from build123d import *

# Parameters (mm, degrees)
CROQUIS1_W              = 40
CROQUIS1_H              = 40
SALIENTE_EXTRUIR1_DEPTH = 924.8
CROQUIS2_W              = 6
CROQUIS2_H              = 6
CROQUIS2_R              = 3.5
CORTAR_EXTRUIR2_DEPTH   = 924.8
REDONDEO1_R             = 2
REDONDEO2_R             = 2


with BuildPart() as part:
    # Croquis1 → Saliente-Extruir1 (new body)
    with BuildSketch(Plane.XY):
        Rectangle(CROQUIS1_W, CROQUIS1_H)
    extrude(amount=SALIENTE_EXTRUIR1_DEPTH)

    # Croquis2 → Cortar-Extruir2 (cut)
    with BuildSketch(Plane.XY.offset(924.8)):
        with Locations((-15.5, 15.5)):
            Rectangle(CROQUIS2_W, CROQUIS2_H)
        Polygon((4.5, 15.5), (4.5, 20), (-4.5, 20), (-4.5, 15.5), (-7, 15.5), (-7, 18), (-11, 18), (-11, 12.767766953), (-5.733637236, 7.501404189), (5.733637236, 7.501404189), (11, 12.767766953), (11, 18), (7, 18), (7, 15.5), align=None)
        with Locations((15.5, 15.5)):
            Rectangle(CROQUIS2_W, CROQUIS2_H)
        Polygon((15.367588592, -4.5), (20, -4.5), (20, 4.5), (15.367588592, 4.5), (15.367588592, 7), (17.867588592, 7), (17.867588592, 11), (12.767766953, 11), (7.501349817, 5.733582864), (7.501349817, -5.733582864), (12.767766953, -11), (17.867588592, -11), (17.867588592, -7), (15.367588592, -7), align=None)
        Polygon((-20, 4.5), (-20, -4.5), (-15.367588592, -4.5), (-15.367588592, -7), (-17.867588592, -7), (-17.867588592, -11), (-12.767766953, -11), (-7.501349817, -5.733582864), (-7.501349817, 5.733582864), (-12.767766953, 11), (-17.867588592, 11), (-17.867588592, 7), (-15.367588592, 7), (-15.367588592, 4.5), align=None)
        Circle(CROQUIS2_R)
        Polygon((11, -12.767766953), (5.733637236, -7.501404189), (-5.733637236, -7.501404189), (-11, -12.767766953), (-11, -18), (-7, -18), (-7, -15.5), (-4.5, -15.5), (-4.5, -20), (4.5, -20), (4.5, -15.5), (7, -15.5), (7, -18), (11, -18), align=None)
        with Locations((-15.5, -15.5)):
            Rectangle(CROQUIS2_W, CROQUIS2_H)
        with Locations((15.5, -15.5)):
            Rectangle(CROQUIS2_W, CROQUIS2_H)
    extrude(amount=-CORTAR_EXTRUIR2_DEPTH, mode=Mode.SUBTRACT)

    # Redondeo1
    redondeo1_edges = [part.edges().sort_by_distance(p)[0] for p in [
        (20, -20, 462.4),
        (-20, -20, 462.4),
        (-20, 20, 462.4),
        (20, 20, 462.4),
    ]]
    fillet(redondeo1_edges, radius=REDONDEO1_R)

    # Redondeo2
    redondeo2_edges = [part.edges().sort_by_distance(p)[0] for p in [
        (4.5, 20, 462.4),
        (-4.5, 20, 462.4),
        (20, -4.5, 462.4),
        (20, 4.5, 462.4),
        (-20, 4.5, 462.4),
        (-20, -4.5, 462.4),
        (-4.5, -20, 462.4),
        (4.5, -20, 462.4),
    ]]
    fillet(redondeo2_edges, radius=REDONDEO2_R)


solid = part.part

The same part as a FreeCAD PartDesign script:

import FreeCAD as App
import Part
import Sketcher
Q = App.Units.Quantity


def edges_at(feature, points):
    """Names of the edges that pass closest to the given points."""
    edges = feature.Shape.Edges
    near = lambda p: min(range(len(edges)), key=lambda i: edges[i].distToShape(Part.Vertex(*p))[0])
    return sorted({f"Edge{near(p) + 1}" for p in points})

doc = App.newDocument("Part")
params = doc.addObject("Spreadsheet::Sheet", "Params")
for row, (alias, value) in enumerate([
    ("sketch1_width", "40 mm"),
    ("pad1_length", "924.8 mm"),
    ("sketch2_diameter", "7 mm"),
    ("sketch2_width", "6 mm"),
    ("sketch2_width2", "9 mm"),
    ("sketch2_width3", "4 mm"),
    ("sketch2_width4", "2.5 mm"),
    ("pocket1_length", "924.8 mm"),
    ("fillet_radius", "2 mm"),
    ("fillet2_radius", "2 mm"),
], start=1):
    params.set(f"A{row}", alias)
    params.set(f"B{row}", "=" + value)
    params.setAlias(f"B{row}", alias)

body = doc.addObject("PartDesign::Body", "Body")

# Sketch on XY plane
sketch1 = doc.addObject("Sketcher::SketchObject", "Sketch")
body.addObject(sketch1)
sketch1.AttachmentSupport = (doc.XY_Plane, [""])
sketch1.MapMode = "FlatFace"
sketch1.addGeometry([
    Part.LineSegment(App.Vector(-20, 20, 0), App.Vector(-20, -20, 0)),
    Part.LineSegment(App.Vector(-20, -20, 0), App.Vector(20, -20, 0)),
    Part.LineSegment(App.Vector(20, -20, 0), App.Vector(20, 20, 0)),
    Part.LineSegment(App.Vector(20, 20, 0), App.Vector(-20, 20, 0)),
], False)
sketch1.addConstraint([
    Sketcher.Constraint("Coincident", 0, 2, 1, 1),
    Sketcher.Constraint("Coincident", 1, 2, 2, 1),
    Sketcher.Constraint("Coincident", 2, 2, 3, 1),
    Sketcher.Constraint("Coincident", 3, 2, 0, 1),
    Sketcher.Constraint("Vertical", 0),
    Sketcher.Constraint("Horizontal", 1),
    Sketcher.Constraint("Vertical", 2),
    Sketcher.Constraint("Horizontal", 3),
    Sketcher.Constraint("Symmetric", 0, 2, 2, 2, -1, 1),
    Sketcher.Constraint("Equal", 3, 0),
    Sketcher.Constraint("DistanceX", 1, 1, 1, 2, Q("40 mm")),
])
sketch1.setExpression("Constraints[10]", "Params.sketch1_width")
pad1 = doc.addObject("PartDesign::Pad", "Pad")
body.addObject(pad1)
pad1.Profile = sketch1
pad1.setExpression("Length", "Params.pad1_length")

# Sketch on XY plane
sketch2 = doc.addObject("Sketcher::SketchObject", "Sketch001")
body.addObject(sketch2)
sketch2.AttachmentSupport = (doc.XY_Plane, [""])
sketch2.MapMode = "FlatFace"
sketch2.AttachmentOffset = App.Placement(App.Vector(0, 0, 924.8), App.Rotation())
sketch2.addGeometry([
    Part.LineSegment(App.Vector(-18.5, 18.5, 0), App.Vector(-18.5, 12.5, 0)),  # 0
    Part.LineSegment(App.Vector(-18.5, 12.5, 0), App.Vector(-12.5, 12.5, 0)),  # 1
    Part.LineSegment(App.Vector(-12.5, 12.5, 0), App.Vector(-12.5, 18.5, 0)),  # 2
    Part.LineSegment(App.Vector(-12.5, 18.5, 0), App.Vector(-18.5, 18.5, 0)),  # 3
    Part.LineSegment(App.Vector(4.5, 15.5, 0), App.Vector(4.5, 20, 0)),  # 4
    Part.LineSegment(App.Vector(4.5, 20, 0), App.Vector(-4.5, 20, 0)),  # 5
    Part.LineSegment(App.Vector(-4.5, 20, 0), App.Vector(-4.5, 15.5, 0)),  # 6
    Part.LineSegment(App.Vector(-4.5, 15.5, 0), App.Vector(-7, 15.5, 0)),  # 7
    Part.LineSegment(App.Vector(-7, 15.5, 0), App.Vector(-7, 18, 0)),  # 8
    Part.LineSegment(App.Vector(-7, 18, 0), App.Vector(-11, 18, 0)),  # 9
    Part.LineSegment(App.Vector(-11, 18, 0), App.Vector(-11, 12.8, 0)),  # 10
    Part.LineSegment(App.Vector(-11, 12.8, 0), App.Vector(-5.7, 7.5, 0)),  # 11
    Part.LineSegment(App.Vector(-5.7, 7.5, 0), App.Vector(5.7, 7.5, 0)),  # 12
    Part.LineSegment(App.Vector(5.7, 7.5, 0), App.Vector(11, 12.8, 0)),  # 13
    Part.LineSegment(App.Vector(11, 12.8, 0), App.Vector(11, 18, 0)),  # 14
    Part.LineSegment(App.Vector(11, 18, 0), App.Vector(7, 18, 0)),  # 15
    Part.LineSegment(App.Vector(7, 18, 0), App.Vector(7, 15.5, 0)),  # 16
    Part.LineSegment(App.Vector(7, 15.5, 0), App.Vector(4.5, 15.5, 0)),  # 17
    Part.LineSegment(App.Vector(12.5, 18.5, 0), App.Vector(12.5, 12.5, 0)),  # 18
    Part.LineSegment(App.Vector(12.5, 12.5, 0), App.Vector(18.5, 12.5, 0)),  # 19
    Part.LineSegment(App.Vector(18.5, 12.5, 0), App.Vector(18.5, 18.5, 0)),  # 20
    Part.LineSegment(App.Vector(18.5, 18.5, 0), App.Vector(12.5, 18.5, 0)),  # 21
    Part.LineSegment(App.Vector(15.4, -4.5, 0), App.Vector(20, -4.5, 0)),  # 22
    Part.LineSegment(App.Vector(20, -4.5, 0), App.Vector(20, 4.5, 0)),  # 23
    Part.LineSegment(App.Vector(20, 4.5, 0), App.Vector(15.4, 4.5, 0)),  # 24
    Part.LineSegment(App.Vector(15.4, 4.5, 0), App.Vector(15.4, 7, 0)),  # 25
    Part.LineSegment(App.Vector(15.4, 7, 0), App.Vector(17.9, 7, 0)),  # 26
    Part.LineSegment(App.Vector(17.9, 7, 0), App.Vector(17.9, 11, 0)),  # 27
    Part.LineSegment(App.Vector(17.9, 11, 0), App.Vector(12.8, 11, 0)),  # 28
    Part.LineSegment(App.Vector(12.8, 11, 0), App.Vector(7.5, 5.7, 0)),  # 29
    Part.LineSegment(App.Vector(7.5, 5.7, 0), App.Vector(7.5, -5.7, 0)),  # 30
    Part.LineSegment(App.Vector(7.5, -5.7, 0), App.Vector(12.8, -11, 0)),  # 31
    Part.LineSegment(App.Vector(12.8, -11, 0), App.Vector(17.9, -11, 0)),  # 32
    Part.LineSegment(App.Vector(17.9, -11, 0), App.Vector(17.9, -7, 0)),  # 33
    Part.LineSegment(App.Vector(17.9, -7, 0), App.Vector(15.4, -7, 0)),  # 34
    Part.LineSegment(App.Vector(15.4, -7, 0), App.Vector(15.4, -4.5, 0)),  # 35
    Part.LineSegment(App.Vector(-20, 4.5, 0), App.Vector(-20, -4.5, 0)),  # 36
    Part.LineSegment(App.Vector(-20, -4.5, 0), App.Vector(-15.4, -4.5, 0)),  # 37
    Part.LineSegment(App.Vector(-15.4, -4.5, 0), App.Vector(-15.4, -7, 0)),  # 38
    Part.LineSegment(App.Vector(-15.4, -7, 0), App.Vector(-17.9, -7, 0)),  # 39
    Part.LineSegment(App.Vector(-17.9, -7, 0), App.Vector(-17.9, -11, 0)),  # 40
    Part.LineSegment(App.Vector(-17.9, -11, 0), App.Vector(-12.8, -11, 0)),  # 41
    Part.LineSegment(App.Vector(-12.8, -11, 0), App.Vector(-7.5, -5.7, 0)),  # 42
    Part.LineSegment(App.Vector(-7.5, -5.7, 0), App.Vector(-7.5, 5.7, 0)),  # 43
    Part.LineSegment(App.Vector(-7.5, 5.7, 0), App.Vector(-12.8, 11, 0)),  # 44
    Part.LineSegment(App.Vector(-12.8, 11, 0), App.Vector(-17.9, 11, 0)),  # 45
    Part.LineSegment(App.Vector(-17.9, 11, 0), App.Vector(-17.9, 7, 0)),  # 46
    Part.LineSegment(App.Vector(-17.9, 7, 0), App.Vector(-15.4, 7, 0)),  # 47
    Part.LineSegment(App.Vector(-15.4, 7, 0), App.Vector(-15.4, 4.5, 0)),  # 48
    Part.LineSegment(App.Vector(-15.4, 4.5, 0), App.Vector(-20, 4.5, 0)),  # 49
    Part.Circle(App.Vector(0, 0, 0), App.Vector(0, 0, 1), 3.5),  # 50
    Part.LineSegment(App.Vector(11, -12.8, 0), App.Vector(5.7, -7.5, 0)),  # 51
    Part.LineSegment(App.Vector(5.7, -7.5, 0), App.Vector(-5.7, -7.5, 0)),  # 52
    Part.LineSegment(App.Vector(-5.7, -7.5, 0), App.Vector(-11, -12.8, 0)),  # 53
    Part.LineSegment(App.Vector(-11, -12.8, 0), App.Vector(-11, -18, 0)),  # 54
    Part.LineSegment(App.Vector(-11, -18, 0), App.Vector(-7, -18, 0)),  # 55
    Part.LineSegment(App.Vector(-7, -18, 0), App.Vector(-7, -15.5, 0)),  # 56
    Part.LineSegment(App.Vector(-7, -15.5, 0), App.Vector(-4.5, -15.5, 0)),  # 57
    Part.LineSegment(App.Vector(-4.5, -15.5, 0), App.Vector(-4.5, -20, 0)),  # 58
    Part.LineSegment(App.Vector(-4.5, -20, 0), App.Vector(4.5, -20, 0)),  # 59
    Part.LineSegment(App.Vector(4.5, -20, 0), App.Vector(4.5, -15.5, 0)),  # 60
    Part.LineSegment(App.Vector(4.5, -15.5, 0), App.Vector(7, -15.5, 0)),  # 61
    Part.LineSegment(App.Vector(7, -15.5, 0), App.Vector(7, -18, 0)),  # 62
    Part.LineSegment(App.Vector(7, -18, 0), App.Vector(11, -18, 0)),  # 63
    Part.LineSegment(App.Vector(11, -18, 0), App.Vector(11, -12.8, 0)),  # 64
    Part.LineSegment(App.Vector(-18.5, -12.5, 0), App.Vector(-18.5, -18.5, 0)),  # 65
    Part.LineSegment(App.Vector(-18.5, -18.5, 0), App.Vector(-12.5, -18.5, 0)),  # 66
    Part.LineSegment(App.Vector(-12.5, -18.5, 0), App.Vector(-12.5, -12.5, 0)),  # 67
    Part.LineSegment(App.Vector(-12.5, -12.5, 0), App.Vector(-18.5, -12.5, 0)),  # 68
    Part.LineSegment(App.Vector(12.5, -12.5, 0), App.Vector(12.5, -18.5, 0)),  # 69
    Part.LineSegment(App.Vector(12.5, -18.5, 0), App.Vector(18.5, -18.5, 0)),  # 70
    Part.LineSegment(App.Vector(18.5, -18.5, 0), App.Vector(18.5, -12.5, 0)),  # 71
    Part.LineSegment(App.Vector(18.5, -12.5, 0), App.Vector(12.5, -12.5, 0)),  # 72
], False)
sketch2.addConstraint([
    Sketcher.Constraint("Coincident", 0, 2, 1, 1),
    Sketcher.Constraint("Coincident", 1, 2, 2, 1),
    Sketcher.Constraint("Coincident", 2, 2, 3, 1),
    Sketcher.Constraint("Coincident", 3, 2, 0, 1),
    Sketcher.Constraint("Coincident", 4, 2, 5, 1),
    Sketcher.Constraint("Coincident", 5, 2, 6, 1),
    Sketcher.Constraint("Coincident", 6, 2, 7, 1),
    Sketcher.Constraint("Coincident", 7, 2, 8, 1),
    Sketcher.Constraint("Coincident", 8, 2, 9, 1),
    Sketcher.Constraint("Coincident", 9, 2, 10, 1),
    Sketcher.Constraint("Coincident", 10, 2, 11, 1),
    Sketcher.Constraint("Coincident", 11, 2, 12, 1),
    Sketcher.Constraint("Coincident", 12, 2, 13, 1),
    Sketcher.Constraint("Coincident", 13, 2, 14, 1),
    Sketcher.Constraint("Coincident", 14, 2, 15, 1),
    Sketcher.Constraint("Coincident", 15, 2, 16, 1),
    Sketcher.Constraint("Coincident", 16, 2, 17, 1),
    Sketcher.Constraint("Coincident", 17, 2, 4, 1),
    Sketcher.Constraint("Coincident", 18, 2, 19, 1),
    Sketcher.Constraint("Coincident", 19, 2, 20, 1),
    Sketcher.Constraint("Coincident", 20, 2, 21, 1),
    Sketcher.Constraint("Coincident", 21, 2, 18, 1),
    Sketcher.Constraint("Coincident", 22, 2, 23, 1),
    Sketcher.Constraint("Coincident", 23, 2, 24, 1),
    Sketcher.Constraint("Coincident", 24, 2, 25, 1),
    Sketcher.Constraint("Coincident", 25, 2, 26, 1),
    Sketcher.Constraint("Coincident", 26, 2, 27, 1),
    Sketcher.Constraint("Coincident", 27, 2, 28, 1),
    Sketcher.Constraint("Coincident", 28, 2, 29, 1),
    Sketcher.Constraint("Coincident", 29, 2, 30, 1),
    Sketcher.Constraint("Coincident", 30, 2, 31, 1),
    Sketcher.Constraint("Coincident", 31, 2, 32, 1),
    Sketcher.Constraint("Coincident", 32, 2, 33, 1),
    Sketcher.Constraint("Coincident", 33, 2, 34, 1),
    Sketcher.Constraint("Coincident", 34, 2, 35, 1),
    Sketcher.Constraint("Coincident", 35, 2, 22, 1),
    Sketcher.Constraint("Coincident", 36, 2, 37, 1),
    Sketcher.Constraint("Coincident", 37, 2, 38, 1),
    Sketcher.Constraint("Coincident", 38, 2, 39, 1),
    Sketcher.Constraint("Coincident", 39, 2, 40, 1),
    Sketcher.Constraint("Coincident", 40, 2, 41, 1),
    Sketcher.Constraint("Coincident", 41, 2, 42, 1),
    Sketcher.Constraint("Coincident", 42, 2, 43, 1),
    Sketcher.Constraint("Coincident", 43, 2, 44, 1),
    Sketcher.Constraint("Coincident", 44, 2, 45, 1),
    Sketcher.Constraint("Coincident", 45, 2, 46, 1),
    Sketcher.Constraint("Coincident", 46, 2, 47, 1),
    Sketcher.Constraint("Coincident", 47, 2, 48, 1),
    Sketcher.Constraint("Coincident", 48, 2, 49, 1),
    Sketcher.Constraint("Coincident", 49, 2, 36, 1),
    Sketcher.Constraint("Coincident", 51, 2, 52, 1),
    Sketcher.Constraint("Coincident", 52, 2, 53, 1),
    Sketcher.Constraint("Coincident", 53, 2, 54, 1),
    Sketcher.Constraint("Coincident", 54, 2, 55, 1),
    Sketcher.Constraint("Coincident", 55, 2, 56, 1),
    Sketcher.Constraint("Coincident", 56, 2, 57, 1),
    Sketcher.Constraint("Coincident", 57, 2, 58, 1),
    Sketcher.Constraint("Coincident", 58, 2, 59, 1),
    Sketcher.Constraint("Coincident", 59, 2, 60, 1),
    Sketcher.Constraint("Coincident", 60, 2, 61, 1),
    Sketcher.Constraint("Coincident", 61, 2, 62, 1),
    Sketcher.Constraint("Coincident", 62, 2, 63, 1),
    Sketcher.Constraint("Coincident", 63, 2, 64, 1),
    Sketcher.Constraint("Coincident", 64, 2, 51, 1),
    Sketcher.Constraint("Coincident", 65, 2, 66, 1),
    Sketcher.Constraint("Coincident", 66, 2, 67, 1),
    Sketcher.Constraint("Coincident", 67, 2, 68, 1),
    Sketcher.Constraint("Coincident", 68, 2, 65, 1),
    Sketcher.Constraint("Coincident", 69, 2, 70, 1),
    Sketcher.Constraint("Coincident", 70, 2, 71, 1),
    Sketcher.Constraint("Coincident", 71, 2, 72, 1),
    Sketcher.Constraint("Coincident", 72, 2, 69, 1),
    Sketcher.Constraint("Vertical", 0),
    Sketcher.Constraint("Horizontal", 1),
    Sketcher.Constraint("Vertical", 2),
    Sketcher.Constraint("Horizontal", 3),
    Sketcher.Constraint("Vertical", 4),
    Sketcher.Constraint("Horizontal", 5),
    Sketcher.Constraint("Vertical", 6),
    Sketcher.Constraint("Horizontal", 7),
    Sketcher.Constraint("Vertical", 8),
    Sketcher.Constraint("Horizontal", 9),
    Sketcher.Constraint("Vertical", 10),
    Sketcher.Constraint("Horizontal", 12),
    Sketcher.Constraint("Vertical", 14),
    Sketcher.Constraint("Horizontal", 15),
    Sketcher.Constraint("Vertical", 16),
    Sketcher.Constraint("Horizontal", 17),
    Sketcher.Constraint("Vertical", 18),
    Sketcher.Constraint("Horizontal", 19),
    Sketcher.Constraint("Vertical", 20),
    Sketcher.Constraint("Horizontal", 21),
    Sketcher.Constraint("Horizontal", 22),
    Sketcher.Constraint("Vertical", 23),
    Sketcher.Constraint("Horizontal", 24),
    Sketcher.Constraint("Vertical", 25),
    Sketcher.Constraint("Horizontal", 26),
    Sketcher.Constraint("Vertical", 27),
    Sketcher.Constraint("Horizontal", 28),
    Sketcher.Constraint("Vertical", 30),
    Sketcher.Constraint("Horizontal", 32),
    Sketcher.Constraint("Vertical", 33),
    Sketcher.Constraint("Horizontal", 34),
    Sketcher.Constraint("Vertical", 35),
    Sketcher.Constraint("Vertical", 36),
    Sketcher.Constraint("Horizontal", 37),
    Sketcher.Constraint("Vertical", 38),
    Sketcher.Constraint("Horizontal", 39),
    Sketcher.Constraint("Vertical", 40),
    Sketcher.Constraint("Horizontal", 41),
    Sketcher.Constraint("Vertical", 43),
    Sketcher.Constraint("Horizontal", 45),
    Sketcher.Constraint("Vertical", 46),
    Sketcher.Constraint("Horizontal", 47),
    Sketcher.Constraint("Vertical", 48),
    Sketcher.Constraint("Horizontal", 49),
    Sketcher.Constraint("Horizontal", 52),
    Sketcher.Constraint("Vertical", 54),
    Sketcher.Constraint("Horizontal", 55),
    Sketcher.Constraint("Vertical", 56),
    Sketcher.Constraint("Horizontal", 57),
    Sketcher.Constraint("Vertical", 58),
    Sketcher.Constraint("Horizontal", 59),
    Sketcher.Constraint("Vertical", 60),
    Sketcher.Constraint("Horizontal", 61),
    Sketcher.Constraint("Vertical", 62),
    Sketcher.Constraint("Horizontal", 63),
    Sketcher.Constraint("Vertical", 64),
    Sketcher.Constraint("Vertical", 65),
    Sketcher.Constraint("Horizontal", 66),
    Sketcher.Constraint("Vertical", 67),
    Sketcher.Constraint("Horizontal", 68),
    Sketcher.Constraint("Vertical", 69),
    Sketcher.Constraint("Horizontal", 70),
    Sketcher.Constraint("Vertical", 71),
    Sketcher.Constraint("Horizontal", 72),
    Sketcher.Constraint("Coincident", 50, 3, -1, 1),
    Sketcher.Constraint("Symmetric", 23, 2, 36, 2, -1, 1),
    Sketcher.Constraint("Symmetric", 25, 2, 38, 2, -1, 1),
    Sketcher.Constraint("Symmetric", 27, 2, 40, 2, -1, 1),
    Sketcher.Constraint("Symmetric", 29, 2, 42, 2, -1, 1),
    Sketcher.Constraint("Symmetric", 31, 2, 44, 2, -1, 1),
    Sketcher.Constraint("Symmetric", 33, 2, 46, 2, -1, 1),
    Sketcher.Constraint("Symmetric", 35, 2, 48, 2, -1, 1),
    Sketcher.Constraint("Symmetric", 11, 2, 51, 2, -1, 1),
    Sketcher.Constraint("Symmetric", 13, 2, 53, 2, -1, 1),
    Sketcher.Constraint("Symmetric", 15, 2, 55, 2, -1, 1),
    Sketcher.Constraint("Symmetric", 17, 2, 57, 2, -1, 1),
    Sketcher.Constraint("Symmetric", 5, 2, 59, 2, -1, 1),
    Sketcher.Constraint("Symmetric", 7, 2, 61, 2, -1, 1),
    Sketcher.Constraint("Symmetric", 9, 2, 63, 2, -1, 1),
    Sketcher.Constraint("Symmetric", 20, 2, 65, 2, -1, 1),
    Sketcher.Constraint("Symmetric", 18, 2, 67, 2, -1, 1),
    Sketcher.Constraint("Symmetric", 2, 2, 69, 2, -1, 1),
    Sketcher.Constraint("Symmetric", 0, 2, 71, 2, -1, 1),
    Sketcher.Constraint("Symmetric", 10, 2, 13, 2, -2),
    Sketcher.Constraint("Symmetric", 8, 2, 15, 2, -2),
    Sketcher.Constraint("Symmetric", 6, 2, 17, 2, -2),
    Sketcher.Constraint("Symmetric", 1, 2, 18, 2, -2),
    Sketcher.Constraint("Symmetric", 3, 2, 20, 2, -2),
    Sketcher.Constraint("Symmetric", 35, 2, 37, 2, -2),
    Sketcher.Constraint("Symmetric", 33, 2, 39, 2, -2),
    Sketcher.Constraint("Symmetric", 31, 2, 41, 2, -2),
    Sketcher.Constraint("Perpendicular", 11, 13),
    Sketcher.Constraint("Parallel", 13, 29),
    Sketcher.Constraint("Perpendicular", 29, 31),
    Sketcher.Constraint("Perpendicular", 31, 42),
    Sketcher.Constraint("Perpendicular", 42, 44),
    Sketcher.Constraint("Parallel", 44, 51),
    Sketcher.Constraint("Perpendicular", 51, 53),
    Sketcher.Constraint("Horizontal", 30, 2, 42, 2),
    Sketcher.Constraint("Equal", 17, 26),
    Sketcher.Constraint("Equal", 72, 0),
    Sketcher.Constraint("Equal", 61, 8),
    Sketcher.Constraint("Equal", 59, 23),
    Sketcher.Constraint("Equal", 16, 25),
    Sketcher.Constraint("Equal", 63, 27),
    Sketcher.Constraint("Diameter", 50, Q("7 mm")),
    Sketcher.Constraint("DistanceX", 1, 1, 1, 2, Q("6 mm")),
    Sketcher.Constraint("DistanceX", 5, 2, 5, 1, Q("9 mm")),
    Sketcher.Constraint("DistanceX", 9, 2, 9, 1, Q("4 mm")),
    Sketcher.Constraint("DistanceX", 7, 2, 7, 1, Q("2.5 mm")),
    Sketcher.Constraint("DistanceY", 4, 1, 4, 2, Q("4.5 mm")),
    Sketcher.Constraint("DistanceY", -1, 1, 4, 2, Q("20 mm")),
    Sketcher.Constraint("DistanceX", -1, 1, 22, 2, Q("20 mm")),
    Sketcher.Constraint("DistanceX", 0, 2, -1, 1, Q("18.5 mm")),
    Sketcher.Constraint("DistanceY", -1, 1, 0, 2, Q("12.5 mm")),
    Sketcher.Constraint("DistanceX", 22, 1, 22, 2, Q("4.632411 mm")),
    Sketcher.Constraint("DistanceX", 28, 2, 28, 1, Q("5.099822 mm")),
    Sketcher.Constraint("Distance", 11, Q("7.447762 mm")),
    Sketcher.Constraint("Distance", 29, Q("7.447839 mm")),
    Sketcher.Constraint("DistanceY", 10, 2, 10, 1, Q("5.232233 mm")),
])
sketch2.setExpression("Constraints[177]", "Params.sketch2_diameter")
sketch2.setExpression("Constraints[178]", "Params.sketch2_width")
sketch2.setExpression("Constraints[179]", "Params.sketch2_width2")
sketch2.setExpression("Constraints[180]", "Params.sketch2_width3")
sketch2.setExpression("Constraints[181]", "Params.sketch2_width4")
pocket1 = doc.addObject("PartDesign::Pocket", "Pocket")
body.addObject(pocket1)
pocket1.Profile = sketch2
pocket1.setExpression("Length", "Params.pocket1_length")
doc.recompute()

fillet = doc.addObject("PartDesign::Fillet", "Fillet")
body.addObject(fillet)
fillet.Base = (pocket1, edges_at(pocket1, [
    (20, -20, 462.4),
    (-20, -20, 462.4),
    (-20, 20, 462.4),
    (20, 20, 462.4),
]))
fillet.setExpression("Radius", "Params.fillet_radius")
doc.recompute()

fillet2 = doc.addObject("PartDesign::Fillet", "Fillet001")
body.addObject(fillet2)
fillet2.Base = (fillet, edges_at(fillet, [
    (4.5, 20, 462.4),
    (-4.5, 20, 462.4),
    (20, -4.5, 462.4),
    (20, 4.5, 462.4),
    (-20, 4.5, 462.4),
    (-20, -4.5, 462.4),
    (-4.5, -20, 462.4),
    (4.5, -20, 462.4),
]))
fillet2.setExpression("Radius", "Params.fillet2_radius")

doc.recompute()
